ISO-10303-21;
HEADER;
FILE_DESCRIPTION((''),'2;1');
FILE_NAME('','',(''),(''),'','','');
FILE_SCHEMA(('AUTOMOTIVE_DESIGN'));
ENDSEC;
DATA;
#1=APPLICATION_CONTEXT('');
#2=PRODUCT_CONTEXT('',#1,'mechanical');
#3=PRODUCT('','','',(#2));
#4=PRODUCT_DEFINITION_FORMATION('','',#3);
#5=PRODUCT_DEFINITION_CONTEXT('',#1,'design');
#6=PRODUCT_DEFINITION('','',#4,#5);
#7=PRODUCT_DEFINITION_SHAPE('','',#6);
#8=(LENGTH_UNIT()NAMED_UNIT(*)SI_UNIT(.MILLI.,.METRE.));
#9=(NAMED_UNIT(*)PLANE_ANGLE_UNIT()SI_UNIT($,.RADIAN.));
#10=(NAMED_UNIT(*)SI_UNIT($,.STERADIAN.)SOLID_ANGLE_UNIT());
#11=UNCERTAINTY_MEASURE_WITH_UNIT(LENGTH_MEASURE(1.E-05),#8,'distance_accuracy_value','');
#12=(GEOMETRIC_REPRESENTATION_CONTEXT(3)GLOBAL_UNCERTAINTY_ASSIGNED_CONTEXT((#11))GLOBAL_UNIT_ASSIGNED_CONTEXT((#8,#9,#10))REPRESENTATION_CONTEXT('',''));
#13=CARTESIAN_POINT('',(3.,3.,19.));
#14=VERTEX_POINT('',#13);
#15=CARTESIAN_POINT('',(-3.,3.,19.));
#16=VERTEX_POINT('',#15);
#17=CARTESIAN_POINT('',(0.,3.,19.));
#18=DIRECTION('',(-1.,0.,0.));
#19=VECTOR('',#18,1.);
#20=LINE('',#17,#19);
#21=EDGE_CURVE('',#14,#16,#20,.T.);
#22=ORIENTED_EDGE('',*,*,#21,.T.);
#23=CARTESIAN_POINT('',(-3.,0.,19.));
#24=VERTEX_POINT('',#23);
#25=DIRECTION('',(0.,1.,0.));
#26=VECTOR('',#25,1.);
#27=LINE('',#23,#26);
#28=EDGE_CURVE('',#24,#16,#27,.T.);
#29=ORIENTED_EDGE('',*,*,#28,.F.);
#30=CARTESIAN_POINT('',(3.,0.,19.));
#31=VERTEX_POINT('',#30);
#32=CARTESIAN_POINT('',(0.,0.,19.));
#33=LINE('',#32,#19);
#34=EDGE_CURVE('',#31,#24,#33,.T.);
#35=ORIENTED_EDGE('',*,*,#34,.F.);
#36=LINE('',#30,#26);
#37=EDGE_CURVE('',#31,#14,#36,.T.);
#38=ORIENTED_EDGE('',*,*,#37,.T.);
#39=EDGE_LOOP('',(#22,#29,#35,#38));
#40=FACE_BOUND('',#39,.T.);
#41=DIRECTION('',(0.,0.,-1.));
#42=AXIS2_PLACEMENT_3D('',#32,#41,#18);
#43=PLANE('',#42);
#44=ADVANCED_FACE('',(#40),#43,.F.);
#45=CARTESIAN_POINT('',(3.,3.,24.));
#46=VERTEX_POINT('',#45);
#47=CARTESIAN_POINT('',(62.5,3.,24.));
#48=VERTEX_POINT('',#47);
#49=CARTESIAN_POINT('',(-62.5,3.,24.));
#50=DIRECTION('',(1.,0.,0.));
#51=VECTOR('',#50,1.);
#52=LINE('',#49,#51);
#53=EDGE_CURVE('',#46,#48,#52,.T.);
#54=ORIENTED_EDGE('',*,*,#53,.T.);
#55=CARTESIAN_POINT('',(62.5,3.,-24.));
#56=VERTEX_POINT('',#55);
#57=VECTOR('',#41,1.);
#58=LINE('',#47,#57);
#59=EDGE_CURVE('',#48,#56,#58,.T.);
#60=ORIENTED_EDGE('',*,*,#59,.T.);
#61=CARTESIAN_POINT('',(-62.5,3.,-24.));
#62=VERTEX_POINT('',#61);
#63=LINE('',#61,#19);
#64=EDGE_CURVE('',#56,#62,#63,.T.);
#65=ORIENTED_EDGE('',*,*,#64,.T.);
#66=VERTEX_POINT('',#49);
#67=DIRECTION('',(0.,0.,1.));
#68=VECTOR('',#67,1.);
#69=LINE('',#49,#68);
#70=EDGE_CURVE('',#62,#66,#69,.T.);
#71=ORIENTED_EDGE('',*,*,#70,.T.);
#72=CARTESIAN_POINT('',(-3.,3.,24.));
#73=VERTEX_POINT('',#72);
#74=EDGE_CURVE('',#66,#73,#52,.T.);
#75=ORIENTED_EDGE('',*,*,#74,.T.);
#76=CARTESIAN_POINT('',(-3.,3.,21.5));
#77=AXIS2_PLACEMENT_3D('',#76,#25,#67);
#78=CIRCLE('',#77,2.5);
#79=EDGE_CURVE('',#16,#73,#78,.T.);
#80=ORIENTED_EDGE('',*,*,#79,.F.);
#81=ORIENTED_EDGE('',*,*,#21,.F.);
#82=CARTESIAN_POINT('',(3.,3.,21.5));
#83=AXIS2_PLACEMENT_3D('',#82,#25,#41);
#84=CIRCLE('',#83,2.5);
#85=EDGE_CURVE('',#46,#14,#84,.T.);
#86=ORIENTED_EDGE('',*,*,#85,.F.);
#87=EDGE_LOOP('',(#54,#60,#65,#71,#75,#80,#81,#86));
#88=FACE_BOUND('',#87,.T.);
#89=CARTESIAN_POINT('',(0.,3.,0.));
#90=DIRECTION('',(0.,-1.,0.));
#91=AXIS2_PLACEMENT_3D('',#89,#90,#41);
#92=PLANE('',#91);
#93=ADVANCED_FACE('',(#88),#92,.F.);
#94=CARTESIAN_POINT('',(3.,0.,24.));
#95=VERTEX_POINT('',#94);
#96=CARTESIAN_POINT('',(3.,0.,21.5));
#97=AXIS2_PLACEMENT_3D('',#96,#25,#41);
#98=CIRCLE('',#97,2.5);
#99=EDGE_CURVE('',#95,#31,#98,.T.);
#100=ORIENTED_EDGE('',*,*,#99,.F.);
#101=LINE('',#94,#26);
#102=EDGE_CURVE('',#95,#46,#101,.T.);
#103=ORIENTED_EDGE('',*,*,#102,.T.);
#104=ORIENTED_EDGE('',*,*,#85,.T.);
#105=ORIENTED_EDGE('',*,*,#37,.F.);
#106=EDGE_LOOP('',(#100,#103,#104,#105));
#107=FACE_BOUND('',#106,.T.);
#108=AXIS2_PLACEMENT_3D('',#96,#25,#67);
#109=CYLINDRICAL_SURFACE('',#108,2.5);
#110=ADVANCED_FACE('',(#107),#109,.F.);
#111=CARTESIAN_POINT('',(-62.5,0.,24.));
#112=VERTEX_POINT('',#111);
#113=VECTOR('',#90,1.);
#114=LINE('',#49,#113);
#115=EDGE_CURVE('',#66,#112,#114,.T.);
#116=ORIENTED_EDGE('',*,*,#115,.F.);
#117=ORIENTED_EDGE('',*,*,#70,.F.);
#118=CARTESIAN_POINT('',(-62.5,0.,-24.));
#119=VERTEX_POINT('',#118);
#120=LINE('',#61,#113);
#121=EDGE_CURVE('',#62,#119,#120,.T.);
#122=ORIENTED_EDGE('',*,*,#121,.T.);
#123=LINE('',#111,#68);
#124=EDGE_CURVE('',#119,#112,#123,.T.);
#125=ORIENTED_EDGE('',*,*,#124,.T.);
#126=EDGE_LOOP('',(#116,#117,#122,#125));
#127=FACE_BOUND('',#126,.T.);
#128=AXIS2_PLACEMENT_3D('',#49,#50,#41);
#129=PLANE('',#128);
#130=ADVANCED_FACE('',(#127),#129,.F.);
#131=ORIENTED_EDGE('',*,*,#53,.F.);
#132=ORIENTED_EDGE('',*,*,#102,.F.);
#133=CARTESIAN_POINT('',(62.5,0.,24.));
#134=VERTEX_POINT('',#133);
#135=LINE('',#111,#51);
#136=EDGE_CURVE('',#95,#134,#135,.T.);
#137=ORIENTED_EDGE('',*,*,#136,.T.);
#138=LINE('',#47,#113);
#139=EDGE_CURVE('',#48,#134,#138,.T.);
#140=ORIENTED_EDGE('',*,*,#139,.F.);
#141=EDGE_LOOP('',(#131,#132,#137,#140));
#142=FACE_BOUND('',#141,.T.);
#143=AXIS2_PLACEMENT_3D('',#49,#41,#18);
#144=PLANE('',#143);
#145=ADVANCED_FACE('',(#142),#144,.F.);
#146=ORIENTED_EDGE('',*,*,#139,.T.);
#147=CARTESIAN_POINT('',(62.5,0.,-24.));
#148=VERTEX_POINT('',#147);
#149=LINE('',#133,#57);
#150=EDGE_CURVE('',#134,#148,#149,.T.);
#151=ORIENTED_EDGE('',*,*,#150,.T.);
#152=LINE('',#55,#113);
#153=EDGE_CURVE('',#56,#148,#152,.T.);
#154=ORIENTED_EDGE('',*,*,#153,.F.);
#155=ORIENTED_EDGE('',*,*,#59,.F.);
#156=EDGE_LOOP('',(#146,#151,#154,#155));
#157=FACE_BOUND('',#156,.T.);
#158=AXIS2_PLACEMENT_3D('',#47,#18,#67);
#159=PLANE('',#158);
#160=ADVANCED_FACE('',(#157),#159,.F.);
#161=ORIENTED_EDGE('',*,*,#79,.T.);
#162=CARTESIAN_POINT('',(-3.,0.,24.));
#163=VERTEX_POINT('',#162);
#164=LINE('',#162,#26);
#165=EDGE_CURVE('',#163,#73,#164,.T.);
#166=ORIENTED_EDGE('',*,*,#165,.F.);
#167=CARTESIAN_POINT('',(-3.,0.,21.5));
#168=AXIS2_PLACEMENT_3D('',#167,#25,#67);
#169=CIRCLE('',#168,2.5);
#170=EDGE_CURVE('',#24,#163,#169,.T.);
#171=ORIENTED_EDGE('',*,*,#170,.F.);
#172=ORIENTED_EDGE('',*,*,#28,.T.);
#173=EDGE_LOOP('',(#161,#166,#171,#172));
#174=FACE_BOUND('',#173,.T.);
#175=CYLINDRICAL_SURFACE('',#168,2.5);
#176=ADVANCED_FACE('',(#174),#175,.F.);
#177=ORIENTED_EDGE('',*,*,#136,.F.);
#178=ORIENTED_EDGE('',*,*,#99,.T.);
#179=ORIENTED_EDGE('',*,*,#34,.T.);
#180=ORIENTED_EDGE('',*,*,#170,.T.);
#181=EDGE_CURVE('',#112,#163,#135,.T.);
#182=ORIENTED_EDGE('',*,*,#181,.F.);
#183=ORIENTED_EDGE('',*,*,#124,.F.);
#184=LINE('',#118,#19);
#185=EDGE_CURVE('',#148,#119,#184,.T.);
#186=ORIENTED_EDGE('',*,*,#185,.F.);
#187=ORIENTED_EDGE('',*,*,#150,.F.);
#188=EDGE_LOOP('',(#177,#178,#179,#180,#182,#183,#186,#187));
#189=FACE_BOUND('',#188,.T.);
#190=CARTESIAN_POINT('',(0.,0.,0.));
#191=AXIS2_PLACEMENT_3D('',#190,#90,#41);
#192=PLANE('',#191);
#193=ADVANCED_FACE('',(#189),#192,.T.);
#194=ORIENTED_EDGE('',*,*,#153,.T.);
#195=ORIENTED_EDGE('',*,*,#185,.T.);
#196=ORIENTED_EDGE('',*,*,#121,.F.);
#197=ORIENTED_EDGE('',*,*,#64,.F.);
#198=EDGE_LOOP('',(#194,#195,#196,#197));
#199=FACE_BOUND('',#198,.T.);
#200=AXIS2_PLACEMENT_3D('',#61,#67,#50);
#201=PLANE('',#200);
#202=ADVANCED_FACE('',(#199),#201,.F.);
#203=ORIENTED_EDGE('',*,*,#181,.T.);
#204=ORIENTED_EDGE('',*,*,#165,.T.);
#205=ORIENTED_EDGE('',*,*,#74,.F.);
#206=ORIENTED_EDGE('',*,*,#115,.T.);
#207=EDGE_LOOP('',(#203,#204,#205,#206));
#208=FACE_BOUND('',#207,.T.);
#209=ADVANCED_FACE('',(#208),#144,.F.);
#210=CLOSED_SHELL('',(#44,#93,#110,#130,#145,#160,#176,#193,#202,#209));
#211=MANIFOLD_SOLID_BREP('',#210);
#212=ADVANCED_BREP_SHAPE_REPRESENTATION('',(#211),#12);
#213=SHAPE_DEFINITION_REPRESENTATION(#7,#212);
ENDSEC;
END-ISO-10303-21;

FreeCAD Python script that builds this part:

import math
import FreeCAD as App
import Part
import Sketcher

V = App.Vector

doc = App.newDocument("Part")
body = doc.addObject("PartDesign::Body", "Body")

# Sketch on XZ plane
sketch1 = body.newObject("Sketcher::SketchObject", "Sketch")
sketch1.AttachmentSupport = (doc.getObject("XZ_Plane"), [""])
sketch1.MapMode = "FlatFace"
sketch1.addGeometry(Part.LineSegment(V(-62, -24, 0), V(-62, 24, 0)), False)
sketch1.addGeometry(Part.LineSegment(V(-62, 24, 0), V(62, 24, 0)), False)
sketch1.addGeometry(Part.LineSegment(V(62, 24, 0), V(62, -24, 0)), False)
sketch1.addGeometry(Part.LineSegment(V(62, -24, 0), V(-62, -24, 0)), False)
sketch1.addConstraint(Sketcher.Constraint("Coincident", 0, 2, 1, 1))
sketch1.addConstraint(Sketcher.Constraint("Coincident", 1, 2, 2, 1))
sketch1.addConstraint(Sketcher.Constraint("Coincident", 2, 2, 3, 1))
sketch1.addConstraint(Sketcher.Constraint("Coincident", 3, 2, 0, 1))
sketch1.addConstraint(Sketcher.Constraint("Vertical", 0))
sketch1.addConstraint(Sketcher.Constraint("Horizontal", 1))
sketch1.addConstraint(Sketcher.Constraint("Vertical", 2))
sketch1.addConstraint(Sketcher.Constraint("Horizontal", 3))
sketch1.addConstraint(Sketcher.Constraint("Symmetric", 0, 2, 2, 2, -1, 1))
sketch1.addConstraint(Sketcher.Constraint("DistanceX", 1, 1, 1, 2, 125.0))
sketch1.addConstraint(Sketcher.Constraint("DistanceY", 0, 1, 0, 2, 48.0))
pad1 = body.newObject("PartDesign::Pad", "Pad")
pad1.Profile = sketch1
pad1.Length = 3
pad1.Reversed = True

# Sketch on XZ plane
sketch2 = body.newObject("Sketcher::SketchObject", "Sketch001")
sketch2.AttachmentSupport = (doc.getObject("XZ_Plane"), [""])
sketch2.MapMode = "FlatFace"
sketch2.AttachmentOffset = App.Placement(V(0, 0, -3), App.Rotation())
sketch2.addGeometry(Part.ArcOfCircle(Part.Circle(V(3, 21.5, 0), V(0, 0, 1), 2.5), math.radians(-90), math.radians(90)), False)
sketch2.addGeometry(Part.LineSegment(V(3, 19, 0), V(-3, 19, 0)), False)
sketch2.addGeometry(Part.ArcOfCircle(Part.Circle(V(-3, 21.5, 0), V(0, 0, 1), 2.5), math.radians(90), math.radians(270)), False)
sketch2.addGeometry(Part.LineSegment(V(-3, 24, 0), V(3, 24, 0)), False)
sketch2.addConstraint(Sketcher.Constraint("Tangent", 0, 1, 1, 1))
sketch2.addConstraint(Sketcher.Constraint("Tangent", 1, 2, 2, 2))
sketch2.addConstraint(Sketcher.Constraint("Tangent", 2, 1, 3, 1))
sketch2.addConstraint(Sketcher.Constraint("Tangent", 3, 2, 0, 2))
sketch2.addConstraint(Sketcher.Constraint("Horizontal", 1))
sketch2.addConstraint(Sketcher.Constraint("Horizontal", 3))
sketch2.addConstraint(Sketcher.Constraint("Radius", 0, 2.5))
sketch2.addConstraint(Sketcher.Constraint("DistanceX", 1, 2, 1, 1, 6.0))
sketch2.addConstraint(Sketcher.Constraint("DistanceX", -1, 1, 0, 3, 3.0))
sketch2.addConstraint(Sketcher.Constraint("DistanceY", -1, 1, 0, 1, 19.0))
pocket1 = body.newObject("PartDesign::Pocket", "Pocket")
pocket1.Profile = sketch2
pocket1.Length = 3
pocket1.Reversed = True

doc.recompute()
